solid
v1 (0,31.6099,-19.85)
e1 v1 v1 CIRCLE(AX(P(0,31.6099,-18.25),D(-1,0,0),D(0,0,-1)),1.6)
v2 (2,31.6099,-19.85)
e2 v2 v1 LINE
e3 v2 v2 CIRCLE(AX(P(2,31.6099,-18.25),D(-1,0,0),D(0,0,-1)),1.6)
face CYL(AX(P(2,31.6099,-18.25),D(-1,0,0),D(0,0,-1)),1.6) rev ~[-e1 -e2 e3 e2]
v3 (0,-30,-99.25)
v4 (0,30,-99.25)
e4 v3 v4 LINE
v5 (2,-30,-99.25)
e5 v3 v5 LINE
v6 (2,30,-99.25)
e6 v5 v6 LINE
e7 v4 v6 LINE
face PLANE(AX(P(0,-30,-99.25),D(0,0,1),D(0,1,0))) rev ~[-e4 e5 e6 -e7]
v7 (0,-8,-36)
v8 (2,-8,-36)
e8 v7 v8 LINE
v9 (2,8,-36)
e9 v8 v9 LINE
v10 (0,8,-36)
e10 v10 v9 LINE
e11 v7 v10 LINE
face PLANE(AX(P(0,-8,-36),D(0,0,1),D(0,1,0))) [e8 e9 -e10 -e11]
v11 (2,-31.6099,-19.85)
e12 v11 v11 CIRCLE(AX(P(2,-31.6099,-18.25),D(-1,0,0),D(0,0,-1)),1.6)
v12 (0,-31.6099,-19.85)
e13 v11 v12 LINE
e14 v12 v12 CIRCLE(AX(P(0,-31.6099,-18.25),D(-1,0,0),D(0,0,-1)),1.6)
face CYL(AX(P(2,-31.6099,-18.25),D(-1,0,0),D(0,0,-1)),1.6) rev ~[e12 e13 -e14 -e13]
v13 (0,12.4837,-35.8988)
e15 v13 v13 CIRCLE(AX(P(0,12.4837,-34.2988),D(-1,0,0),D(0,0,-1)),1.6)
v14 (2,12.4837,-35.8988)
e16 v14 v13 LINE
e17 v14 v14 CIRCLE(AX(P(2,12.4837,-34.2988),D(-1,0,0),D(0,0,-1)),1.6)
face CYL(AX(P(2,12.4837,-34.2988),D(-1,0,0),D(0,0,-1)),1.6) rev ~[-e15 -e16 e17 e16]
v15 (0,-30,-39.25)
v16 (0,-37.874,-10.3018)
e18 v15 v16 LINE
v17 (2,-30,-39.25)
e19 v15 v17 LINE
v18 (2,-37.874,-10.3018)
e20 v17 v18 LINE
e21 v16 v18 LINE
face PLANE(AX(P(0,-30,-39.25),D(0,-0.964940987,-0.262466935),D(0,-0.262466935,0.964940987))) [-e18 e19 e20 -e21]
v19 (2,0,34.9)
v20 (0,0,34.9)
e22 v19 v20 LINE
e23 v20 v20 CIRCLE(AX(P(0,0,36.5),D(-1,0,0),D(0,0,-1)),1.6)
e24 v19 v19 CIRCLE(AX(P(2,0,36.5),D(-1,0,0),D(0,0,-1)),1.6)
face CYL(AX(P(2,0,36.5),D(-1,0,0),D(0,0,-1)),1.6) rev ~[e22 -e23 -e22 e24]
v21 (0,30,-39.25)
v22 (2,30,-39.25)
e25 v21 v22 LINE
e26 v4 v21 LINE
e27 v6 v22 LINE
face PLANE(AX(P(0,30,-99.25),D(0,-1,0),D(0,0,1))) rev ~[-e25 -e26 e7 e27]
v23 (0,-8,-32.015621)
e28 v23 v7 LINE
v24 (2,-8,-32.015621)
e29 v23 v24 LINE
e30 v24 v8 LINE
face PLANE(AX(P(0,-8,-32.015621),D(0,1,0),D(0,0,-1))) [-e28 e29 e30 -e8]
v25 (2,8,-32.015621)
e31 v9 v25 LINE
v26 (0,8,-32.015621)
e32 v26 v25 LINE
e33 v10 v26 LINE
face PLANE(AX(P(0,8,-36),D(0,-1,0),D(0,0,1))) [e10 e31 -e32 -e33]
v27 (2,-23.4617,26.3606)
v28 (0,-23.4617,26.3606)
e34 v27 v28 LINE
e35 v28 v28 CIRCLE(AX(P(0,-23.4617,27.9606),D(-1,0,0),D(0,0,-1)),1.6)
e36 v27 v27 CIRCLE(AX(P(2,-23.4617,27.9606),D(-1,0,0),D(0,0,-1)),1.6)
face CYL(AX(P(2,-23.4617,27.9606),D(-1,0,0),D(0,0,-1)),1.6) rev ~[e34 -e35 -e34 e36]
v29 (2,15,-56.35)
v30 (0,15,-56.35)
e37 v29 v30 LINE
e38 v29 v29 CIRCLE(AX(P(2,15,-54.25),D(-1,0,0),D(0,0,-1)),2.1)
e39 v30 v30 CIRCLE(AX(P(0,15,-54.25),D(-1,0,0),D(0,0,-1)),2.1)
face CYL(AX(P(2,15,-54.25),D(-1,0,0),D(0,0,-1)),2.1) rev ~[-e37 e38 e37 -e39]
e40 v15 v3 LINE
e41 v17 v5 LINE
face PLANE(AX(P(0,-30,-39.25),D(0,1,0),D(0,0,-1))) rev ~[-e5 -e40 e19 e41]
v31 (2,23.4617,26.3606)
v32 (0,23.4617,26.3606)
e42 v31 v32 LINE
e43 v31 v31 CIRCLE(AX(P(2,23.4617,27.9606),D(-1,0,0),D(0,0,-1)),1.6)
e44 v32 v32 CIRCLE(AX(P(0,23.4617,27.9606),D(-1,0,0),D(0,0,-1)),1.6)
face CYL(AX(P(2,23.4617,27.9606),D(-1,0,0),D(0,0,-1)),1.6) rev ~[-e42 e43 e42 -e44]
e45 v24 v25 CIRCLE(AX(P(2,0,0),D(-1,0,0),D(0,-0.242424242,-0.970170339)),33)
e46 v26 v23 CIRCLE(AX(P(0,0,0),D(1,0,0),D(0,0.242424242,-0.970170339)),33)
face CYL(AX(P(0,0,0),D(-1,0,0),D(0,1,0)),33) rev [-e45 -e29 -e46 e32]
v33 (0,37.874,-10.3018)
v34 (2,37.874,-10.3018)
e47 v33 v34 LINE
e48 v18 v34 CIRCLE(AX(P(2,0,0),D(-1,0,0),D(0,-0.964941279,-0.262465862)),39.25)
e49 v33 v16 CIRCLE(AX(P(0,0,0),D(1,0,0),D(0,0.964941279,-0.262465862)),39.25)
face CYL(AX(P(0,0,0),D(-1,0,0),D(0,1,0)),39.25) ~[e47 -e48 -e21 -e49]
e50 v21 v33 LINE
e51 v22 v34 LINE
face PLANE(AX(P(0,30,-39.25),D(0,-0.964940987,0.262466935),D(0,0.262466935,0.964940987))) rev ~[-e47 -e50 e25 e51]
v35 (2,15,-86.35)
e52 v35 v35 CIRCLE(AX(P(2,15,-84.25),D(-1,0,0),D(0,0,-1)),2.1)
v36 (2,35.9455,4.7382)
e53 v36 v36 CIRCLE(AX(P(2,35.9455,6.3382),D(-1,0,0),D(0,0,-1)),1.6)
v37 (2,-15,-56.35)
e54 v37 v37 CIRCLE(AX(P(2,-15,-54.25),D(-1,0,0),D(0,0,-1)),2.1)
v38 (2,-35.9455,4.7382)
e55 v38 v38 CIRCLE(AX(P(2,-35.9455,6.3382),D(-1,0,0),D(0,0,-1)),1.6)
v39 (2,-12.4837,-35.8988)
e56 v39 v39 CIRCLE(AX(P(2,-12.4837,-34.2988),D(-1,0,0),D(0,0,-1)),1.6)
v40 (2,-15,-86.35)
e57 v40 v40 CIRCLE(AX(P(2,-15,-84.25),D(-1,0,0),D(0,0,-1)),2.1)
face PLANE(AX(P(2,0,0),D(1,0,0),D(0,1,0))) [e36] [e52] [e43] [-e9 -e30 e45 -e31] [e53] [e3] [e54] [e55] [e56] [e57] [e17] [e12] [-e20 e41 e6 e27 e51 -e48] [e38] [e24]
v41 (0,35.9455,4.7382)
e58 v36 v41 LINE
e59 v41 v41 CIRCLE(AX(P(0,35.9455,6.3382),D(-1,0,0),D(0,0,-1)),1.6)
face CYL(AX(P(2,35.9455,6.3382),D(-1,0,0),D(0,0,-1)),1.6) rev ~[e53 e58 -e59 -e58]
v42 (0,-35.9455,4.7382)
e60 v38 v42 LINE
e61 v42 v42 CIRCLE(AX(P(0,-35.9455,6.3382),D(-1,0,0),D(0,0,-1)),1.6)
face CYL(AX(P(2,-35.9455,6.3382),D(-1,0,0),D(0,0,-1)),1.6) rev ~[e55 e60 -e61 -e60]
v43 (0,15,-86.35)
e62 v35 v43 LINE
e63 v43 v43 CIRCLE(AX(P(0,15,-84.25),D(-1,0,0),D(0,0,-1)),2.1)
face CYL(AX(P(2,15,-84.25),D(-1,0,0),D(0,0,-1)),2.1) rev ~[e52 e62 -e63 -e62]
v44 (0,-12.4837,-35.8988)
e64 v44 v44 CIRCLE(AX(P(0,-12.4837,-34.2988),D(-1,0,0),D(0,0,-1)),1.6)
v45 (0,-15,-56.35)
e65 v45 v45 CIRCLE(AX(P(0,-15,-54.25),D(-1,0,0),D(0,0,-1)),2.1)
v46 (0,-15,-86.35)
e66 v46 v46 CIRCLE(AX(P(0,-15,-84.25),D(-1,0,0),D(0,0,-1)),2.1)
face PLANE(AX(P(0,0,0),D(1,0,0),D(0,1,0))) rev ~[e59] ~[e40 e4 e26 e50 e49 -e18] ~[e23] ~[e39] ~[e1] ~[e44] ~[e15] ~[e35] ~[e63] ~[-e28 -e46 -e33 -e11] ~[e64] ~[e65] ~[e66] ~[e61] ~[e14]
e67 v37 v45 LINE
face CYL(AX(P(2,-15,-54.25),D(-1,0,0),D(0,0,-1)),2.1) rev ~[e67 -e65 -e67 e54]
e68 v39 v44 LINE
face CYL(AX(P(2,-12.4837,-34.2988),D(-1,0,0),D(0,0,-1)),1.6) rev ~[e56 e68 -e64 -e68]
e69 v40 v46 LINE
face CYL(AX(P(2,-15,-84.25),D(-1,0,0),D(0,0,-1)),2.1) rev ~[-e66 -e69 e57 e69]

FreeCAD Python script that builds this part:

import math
import FreeCAD as App
import Part
import Sketcher

doc = App.newDocument("Part")
body = doc.addObject("PartDesign::Body", "Body")

sketch1 = doc.addObject("Sketcher::SketchObject", "Sketch")
body.addObject(sketch1)
sketch1.AttachmentSupport = (doc.YZ_Plane, [""])
sketch1.MapMode = "FlatFace"
sketch1.addGeometry(Part.ArcOfCircle(Part.Circle(App.Vector(0, 0, 0), App.Vector(0, 0, 1), 39.25), math.radians(-15.216428), math.radians(195.216428)), False)
sketch1.addGeometry(Part.LineSegment(App.Vector(-37.874, -10.3018, 0), App.Vector(-30, -39.25, 0)), False)
sketch1.addGeometry(Part.LineSegment(App.Vector(-30, -39.25, 0), App.Vector(-30, -99.25, 0)), False)
sketch1.addGeometry(Part.LineSegment(App.Vector(-30, -99.25, 0), App.Vector(30, -99.25, 0)), False)
sketch1.addGeometry(Part.LineSegment(App.Vector(30, -99.25, 0), App.Vector(30, -39.25, 0)), False)
sketch1.addGeometry(Part.LineSegment(App.Vector(30, -39.25, 0), App.Vector(37.874, -10.3018, 0)), False)
sketch1.addGeometry(Part.ArcOfCircle(Part.Circle(App.Vector(0, 0, 0), App.Vector(0, 0, 1), 33), math.radians(-75.970335), math.radians(255.970335)), False)
sketch1.addGeometry(Part.LineSegment(App.Vector(8, -32.015621, 0), App.Vector(8, -36, 0)), False)
sketch1.addGeometry(Part.LineSegment(App.Vector(8, -36, 0), App.Vector(-8, -36, 0)), False)
sketch1.addGeometry(Part.LineSegment(App.Vector(-8, -36, 0), App.Vector(-8, -32.015621, 0)), False)
sketch1.addConstraint(Sketcher.Constraint("Tangent", 0, 2, 1, 1))
sketch1.addConstraint(Sketcher.Constraint("Coincident", 1, 2, 2, 1))
sketch1.addConstraint(Sketcher.Constraint("Coincident", 2, 2, 3, 1))
sketch1.addConstraint(Sketcher.Constraint("Coincident", 3, 2, 4, 1))
sketch1.addConstraint(Sketcher.Constraint("Coincident", 4, 2, 5, 1))
sketch1.addConstraint(Sketcher.Constraint("Tangent", 5, 2, 0, 1))
sketch1.addConstraint(Sketcher.Constraint("Coincident", 6, 1, 7, 1))
sketch1.addConstraint(Sketcher.Constraint("Coincident", 7, 2, 8, 1))
sketch1.addConstraint(Sketcher.Constraint("Coincident", 8, 2, 9, 1))
sketch1.addConstraint(Sketcher.Constraint("Coincident", 9, 2, 6, 2))
sketch1.addConstraint(Sketcher.Constraint("Vertical", 2))
sketch1.addConstraint(Sketcher.Constraint("Horizontal", 3))
sketch1.addConstraint(Sketcher.Constraint("Vertical", 4))
sketch1.addConstraint(Sketcher.Constraint("Vertical", 7))
sketch1.addConstraint(Sketcher.Constraint("Horizontal", 8))
sketch1.addConstraint(Sketcher.Constraint("Vertical", 9))
sketch1.addConstraint(Sketcher.Constraint("Coincident", 0, 3, -1, 1))
sketch1.addConstraint(Sketcher.Constraint("Coincident", 6, 3, -1, 1))
sketch1.addConstraint(Sketcher.Constraint("Symmetric", 1, 2, 4, 2, -2))
sketch1.addConstraint(Sketcher.Constraint("Horizontal", 6, 1, 9, 2))
sketch1.addConstraint(Sketcher.Constraint("Equal", 3, 2))
sketch1.addConstraint(Sketcher.Constraint("Radius", 6, 33.0))
sketch1.addConstraint(Sketcher.Constraint("DistanceX", 3, 1, 3, 2, 60.0))
sketch1.addConstraint(Sketcher.Constraint("DistanceX", 8, 2, 8, 1, 16.0))
sketch1.addConstraint(Sketcher.Constraint("Radius", 0, 39.25))
sketch1.addConstraint(Sketcher.Constraint("Distance", 1, 30.0))
sketch1.addConstraint(Sketcher.Constraint("DistanceY", 7, 2, -1, 1, 36.0))
pad1 = doc.addObject("PartDesign::Pad", "Pad")
body.addObject(pad1)
pad1.Profile = sketch1
pad1.Length = 2

sketch2 = doc.addObject("Sketcher::SketchObject", "Sketch001")
body.addObject(sketch2)
sketch2.AttachmentSupport = (doc.YZ_Plane, [""])
sketch2.MapMode = "FlatFace"
sketch2.AttachmentOffset = App.Placement(App.Vector(0, 0, 2), App.Rotation())
sketch2.addGeometry(Part.Circle(App.Vector(0, 36.5, 0), App.Vector(0, 0, 1), 1.6), False)
sketch2.addGeometry(Part.Circle(App.Vector(-23.4617, 27.9606, 0), App.Vector(0, 0, 1), 1.6), False)
sketch2.addGeometry(Part.Circle(App.Vector(-35.9455, 6.3382, 0), App.Vector(0, 0, 1), 1.6), False)
sketch2.addGeometry(Part.Circle(App.Vector(-31.6099, -18.25, 0), App.Vector(0, 0, 1), 1.6), False)
sketch2.addGeometry(Part.Circle(App.Vector(-12.4837, -34.2988, 0), App.Vector(0, 0, 1), 1.6), False)
sketch2.addGeometry(Part.Circle(App.Vector(12.4837, -34.2988, 0), App.Vector(0, 0, 1), 1.6), False)
sketch2.addGeometry(Part.Circle(App.Vector(31.6099, -18.25, 0), App.Vector(0, 0, 1), 1.6), False)
sketch2.addGeometry(Part.Circle(App.Vector(35.9455, 6.3382, 0), App.Vector(0, 0, 1), 1.6), False)
sketch2.addGeometry(Part.Circle(App.Vector(23.4617, 27.9606, 0), App.Vector(0, 0, 1), 1.6), False)
sketch2.addConstraint(Sketcher.Constraint("Equal", 0, 1))
sketch2.addConstraint(Sketcher.Constraint("Equal", 1, 2))
sketch2.addConstraint(Sketcher.Constraint("Equal", 2, 3))
sketch2.addConstraint(Sketcher.Constraint("Equal", 3, 4))
sketch2.addConstraint(Sketcher.Constraint("Equal", 4, 5))
sketch2.addConstraint(Sketcher.Constraint("Equal", 5, 6))
sketch2.addConstraint(Sketcher.Constraint("Equal", 6, 7))
sketch2.addConstraint(Sketcher.Constraint("Equal", 7, 8))
sketch2.addConstraint(Sketcher.Constraint("Symmetric", 4, 3, 5, 3, -2))
sketch2.addConstraint(Sketcher.Constraint("Symmetric", 3, 3, 6, 3, -2))
sketch2.addConstraint(Sketcher.Constraint("Symmetric", 2, 3, 7, 3, -2))
sketch2.addConstraint(Sketcher.Constraint("Symmetric", 1, 3, 8, 3, -2))
sketch2.addConstraint(Sketcher.Constraint("PointOnObject", 0, 3, -2))
sketch2.addConstraint(Sketcher.Constraint("Diameter", 0, 3.2))
sketch2.addConstraint(Sketcher.Constraint("DistanceY", -1, 1, 0, 3, 36.5))
sketch2.addConstraint(Sketcher.Constraint("DistanceX", 3, 3, -1, 1, 31.61))
sketch2.addConstraint(Sketcher.Constraint("DistanceY", 3, 3, -1, 1, 18.25))
sketch2.addConstraint(Sketcher.Constraint("DistanceY", 4, 3, 2, 3, 40.637))
sketch2.addConstraint(Sketcher.Constraint("DistanceX", 1, 3, 4, 3, 10.978))
sketch2.addConstraint(Sketcher.Constraint("DistanceX", 1, 3, -1, 1, 23.4617))
sketch2.addConstraint(Sketcher.Constraint("DistanceY", -1, 1, 1, 3, 27.9606))
sketch2.addConstraint(Sketcher.Constraint("DistanceX", 2, 3, -1, 1, 35.9455))
sketch2.addConstraint(Sketcher.Constraint("DistanceY", -1, 1, 2, 3, 6.3382))
doc.recompute()
hole = doc.addObject("PartDesign::Hole", "Hole")
body.addObject(hole)
hole.Profile = sketch2
hole.ThreadType = "None"
hole.Diameter = 3.2
hole.DepthType = "ThroughAll"

sketch3 = doc.addObject("Sketcher::SketchObject", "Sketch002")
body.addObject(sketch3)
sketch3.AttachmentSupport = (doc.YZ_Plane, [""])
sketch3.MapMode = "FlatFace"
sketch3.AttachmentOffset = App.Placement(App.Vector(0, 0, 2), App.Rotation())
sketch3.addGeometry(Part.Circle(App.Vector(15, -54.25, 0), App.Vector(0, 0, 1), 2.1), False)
sketch3.addGeometry(Part.Circle(App.Vector(-15, -54.25, 0), App.Vector(0, 0, 1), 2.1), False)
sketch3.addGeometry(Part.Circle(App.Vector(15, -84.25, 0), App.Vector(0, 0, 1), 2.1), False)
sketch3.addGeometry(Part.Circle(App.Vector(-15, -84.25, 0), App.Vector(0, 0, 1), 2.1), False)
sketch3.addConstraint(Sketcher.Constraint("Equal", 0, 1))
sketch3.addConstraint(Sketcher.Constraint("Equal", 1, 2))
sketch3.addConstraint(Sketcher.Constraint("Equal", 2, 3))
sketch3.addConstraint(Sketcher.Constraint("Symmetric", 0, 3, 1, 3, -2))
sketch3.addConstraint(Sketcher.Constraint("Symmetric", 2, 3, 3, 3, -2))
sketch3.addConstraint(Sketcher.Constraint("Vertical", 0, 3, 2, 3))
sketch3.addConstraint(Sketcher.Constraint("Diameter", 0, 4.2))
sketch3.addConstraint(Sketcher.Constraint("DistanceX", -1, 1, 0, 3, 15.0))
sketch3.addConstraint(Sketcher.Constraint("DistanceY", 2, 3, 0, 3, 30.0))
sketch3.addConstraint(Sketcher.Constraint("DistanceY", 0, 3, -1, 1, 54.25))
doc.recompute()
hole2 = doc.addObject("PartDesign::Hole", "Hole001")
body.addObject(hole2)
hole2.Profile = sketch3
hole2.ThreadType = "None"
hole2.Diameter = 4.2
hole2.DepthType = "ThroughAll"

doc.recompute()
